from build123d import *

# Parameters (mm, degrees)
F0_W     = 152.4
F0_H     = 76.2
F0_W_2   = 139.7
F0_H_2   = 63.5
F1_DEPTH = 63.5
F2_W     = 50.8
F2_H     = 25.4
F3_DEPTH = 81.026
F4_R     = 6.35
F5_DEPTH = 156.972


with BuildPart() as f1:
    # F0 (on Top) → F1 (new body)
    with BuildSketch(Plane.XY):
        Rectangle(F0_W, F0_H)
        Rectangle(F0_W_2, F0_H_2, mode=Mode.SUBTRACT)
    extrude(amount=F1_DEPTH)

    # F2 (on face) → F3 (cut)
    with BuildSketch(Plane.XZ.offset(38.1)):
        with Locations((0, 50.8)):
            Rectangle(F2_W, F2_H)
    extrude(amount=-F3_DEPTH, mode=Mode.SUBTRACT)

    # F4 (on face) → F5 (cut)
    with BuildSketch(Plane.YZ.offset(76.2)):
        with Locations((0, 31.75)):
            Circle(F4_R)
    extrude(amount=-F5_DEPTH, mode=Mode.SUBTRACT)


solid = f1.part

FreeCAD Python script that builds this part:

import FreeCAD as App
import Part
import Sketcher
from FreeCAD import Vector
Q = App.Units.Quantity


def add_polygon(sketch, points):
    """Adds a closed chain of lines whose ends are joined by coincident constraints."""
    first, n = sketch.GeometryCount, len(points)
    for a, b in zip(points, points[1:] + points[:1]):
        sketch.addGeometry(Part.LineSegment(App.Vector(*a, 0), App.Vector(*b, 0)), False)
    for i in range(n):
        sketch.addConstraint(Sketcher.Constraint("Coincident", first + i, 2, first + (i + 1) % n, 1))

doc = App.newDocument("Part")
body = doc.addObject("PartDesign::Body", "Body")

# Sketch on XY plane
sketch1 = body.newObject("Sketcher::SketchObject", "Sketch")
sketch1.AttachmentSupport = (doc.getObject("XY_Plane"), [""])
sketch1.MapMode = "FlatFace"
add_polygon(sketch1, [(-76, 38), (-76, -38), (76, -38), (76, 38)])  # lines 0-3
add_polygon(sketch1, [(70, -32), (-70, -32), (-70, 32), (70, 32)])  # lines 4-7
sketch1.addConstraint([
    Sketcher.Constraint("Vertical", 0),
    Sketcher.Constraint("Horizontal", 1),
    Sketcher.Constraint("Vertical", 2),
    Sketcher.Constraint("Horizontal", 3),
    Sketcher.Constraint("Horizontal", 4),
    Sketcher.Constraint("Vertical", 5),
    Sketcher.Constraint("Horizontal", 6),
    Sketcher.Constraint("Vertical", 7),
    Sketcher.Constraint("Symmetric", 0, 2, 2, 2, -1, 1),
    Sketcher.Constraint("Symmetric", 4, 2, 6, 2, -1, 1),
    Sketcher.Constraint("DistanceX", 1, 1, 1, 2, Q("6 in")),
    Sketcher.Constraint("DistanceY", 0, 2, 0, 1, Q("3 in")),
    Sketcher.Constraint("DistanceX", 4, 2, 4, 1, Q("5.5 in")),
    Sketcher.Constraint("DistanceY", 5, 1, 5, 2, Q("2.5 in")),
])
pad1 = body.newObject("PartDesign::Pad", "Pad")
pad1.Profile = sketch1
pad1.Length = Q("2.5 in")

# Sketch on XZ plane
sketch2 = body.newObject("Sketcher::SketchObject", "Sketch001")
sketch2.AttachmentSupport = (doc.getObject("XZ_Plane"), [""])
sketch2.MapMode = "FlatFace"
sketch2.AttachmentOffset = App.Placement(Vector(0, 0, 1.5 * 25.4), App.Rotation())
add_polygon(sketch2, [(-25, 64), (-25, 38), (25, 38), (25, 64)])  # lines 0-3
sketch2.addConstraint([
    Sketcher.Constraint("Vertical", 0),
    Sketcher.Constraint("Horizontal", 1),
    Sketcher.Constraint("Vertical", 2),
    Sketcher.Constraint("Horizontal", 3),
    Sketcher.Constraint("DistanceX", 1, 1, 1, 2, Q("2 in")),
    Sketcher.Constraint("DistanceY", 0, 2, 0, 1, Q("1 in")),
    Sketcher.Constraint("DistanceX", 0, 2, -1, 1, Q("1 in")),
    Sketcher.Constraint("DistanceY", -1, 1, 0, 2, Q("1.5 in")),
])
pocket1 = body.newObject("PartDesign::Pocket", "Pocket")
pocket1.Profile = sketch2
pocket1.Length = Q("3.19 in")

# Sketch on YZ plane
sketch3 = body.newObject("Sketcher::SketchObject", "Sketch002")
sketch3.AttachmentSupport = (doc.getObject("YZ_Plane"), [""])
sketch3.MapMode = "FlatFace"
sketch3.AttachmentOffset = App.Placement(Vector(0, 0, 3 * 25.4), App.Rotation())
sketch3.addGeometry(Part.Circle(Vector(0, 32, 0), Vector(0, 0, 1), 6), False)
sketch3.addConstraint([
    Sketcher.Constraint("PointOnObject", 0, 3, -2),
    Sketcher.Constraint("Diameter", 0, Q("0.5 in")),
    Sketcher.Constraint("DistanceY", -1, 1, 0, 3, Q("1.25 in")),
])
pocket2 = body.newObject("PartDesign::Pocket", "Pocket001")
pocket2.Profile = sketch3
pocket2.Length = Q("6.18 in")

doc.recompute()
